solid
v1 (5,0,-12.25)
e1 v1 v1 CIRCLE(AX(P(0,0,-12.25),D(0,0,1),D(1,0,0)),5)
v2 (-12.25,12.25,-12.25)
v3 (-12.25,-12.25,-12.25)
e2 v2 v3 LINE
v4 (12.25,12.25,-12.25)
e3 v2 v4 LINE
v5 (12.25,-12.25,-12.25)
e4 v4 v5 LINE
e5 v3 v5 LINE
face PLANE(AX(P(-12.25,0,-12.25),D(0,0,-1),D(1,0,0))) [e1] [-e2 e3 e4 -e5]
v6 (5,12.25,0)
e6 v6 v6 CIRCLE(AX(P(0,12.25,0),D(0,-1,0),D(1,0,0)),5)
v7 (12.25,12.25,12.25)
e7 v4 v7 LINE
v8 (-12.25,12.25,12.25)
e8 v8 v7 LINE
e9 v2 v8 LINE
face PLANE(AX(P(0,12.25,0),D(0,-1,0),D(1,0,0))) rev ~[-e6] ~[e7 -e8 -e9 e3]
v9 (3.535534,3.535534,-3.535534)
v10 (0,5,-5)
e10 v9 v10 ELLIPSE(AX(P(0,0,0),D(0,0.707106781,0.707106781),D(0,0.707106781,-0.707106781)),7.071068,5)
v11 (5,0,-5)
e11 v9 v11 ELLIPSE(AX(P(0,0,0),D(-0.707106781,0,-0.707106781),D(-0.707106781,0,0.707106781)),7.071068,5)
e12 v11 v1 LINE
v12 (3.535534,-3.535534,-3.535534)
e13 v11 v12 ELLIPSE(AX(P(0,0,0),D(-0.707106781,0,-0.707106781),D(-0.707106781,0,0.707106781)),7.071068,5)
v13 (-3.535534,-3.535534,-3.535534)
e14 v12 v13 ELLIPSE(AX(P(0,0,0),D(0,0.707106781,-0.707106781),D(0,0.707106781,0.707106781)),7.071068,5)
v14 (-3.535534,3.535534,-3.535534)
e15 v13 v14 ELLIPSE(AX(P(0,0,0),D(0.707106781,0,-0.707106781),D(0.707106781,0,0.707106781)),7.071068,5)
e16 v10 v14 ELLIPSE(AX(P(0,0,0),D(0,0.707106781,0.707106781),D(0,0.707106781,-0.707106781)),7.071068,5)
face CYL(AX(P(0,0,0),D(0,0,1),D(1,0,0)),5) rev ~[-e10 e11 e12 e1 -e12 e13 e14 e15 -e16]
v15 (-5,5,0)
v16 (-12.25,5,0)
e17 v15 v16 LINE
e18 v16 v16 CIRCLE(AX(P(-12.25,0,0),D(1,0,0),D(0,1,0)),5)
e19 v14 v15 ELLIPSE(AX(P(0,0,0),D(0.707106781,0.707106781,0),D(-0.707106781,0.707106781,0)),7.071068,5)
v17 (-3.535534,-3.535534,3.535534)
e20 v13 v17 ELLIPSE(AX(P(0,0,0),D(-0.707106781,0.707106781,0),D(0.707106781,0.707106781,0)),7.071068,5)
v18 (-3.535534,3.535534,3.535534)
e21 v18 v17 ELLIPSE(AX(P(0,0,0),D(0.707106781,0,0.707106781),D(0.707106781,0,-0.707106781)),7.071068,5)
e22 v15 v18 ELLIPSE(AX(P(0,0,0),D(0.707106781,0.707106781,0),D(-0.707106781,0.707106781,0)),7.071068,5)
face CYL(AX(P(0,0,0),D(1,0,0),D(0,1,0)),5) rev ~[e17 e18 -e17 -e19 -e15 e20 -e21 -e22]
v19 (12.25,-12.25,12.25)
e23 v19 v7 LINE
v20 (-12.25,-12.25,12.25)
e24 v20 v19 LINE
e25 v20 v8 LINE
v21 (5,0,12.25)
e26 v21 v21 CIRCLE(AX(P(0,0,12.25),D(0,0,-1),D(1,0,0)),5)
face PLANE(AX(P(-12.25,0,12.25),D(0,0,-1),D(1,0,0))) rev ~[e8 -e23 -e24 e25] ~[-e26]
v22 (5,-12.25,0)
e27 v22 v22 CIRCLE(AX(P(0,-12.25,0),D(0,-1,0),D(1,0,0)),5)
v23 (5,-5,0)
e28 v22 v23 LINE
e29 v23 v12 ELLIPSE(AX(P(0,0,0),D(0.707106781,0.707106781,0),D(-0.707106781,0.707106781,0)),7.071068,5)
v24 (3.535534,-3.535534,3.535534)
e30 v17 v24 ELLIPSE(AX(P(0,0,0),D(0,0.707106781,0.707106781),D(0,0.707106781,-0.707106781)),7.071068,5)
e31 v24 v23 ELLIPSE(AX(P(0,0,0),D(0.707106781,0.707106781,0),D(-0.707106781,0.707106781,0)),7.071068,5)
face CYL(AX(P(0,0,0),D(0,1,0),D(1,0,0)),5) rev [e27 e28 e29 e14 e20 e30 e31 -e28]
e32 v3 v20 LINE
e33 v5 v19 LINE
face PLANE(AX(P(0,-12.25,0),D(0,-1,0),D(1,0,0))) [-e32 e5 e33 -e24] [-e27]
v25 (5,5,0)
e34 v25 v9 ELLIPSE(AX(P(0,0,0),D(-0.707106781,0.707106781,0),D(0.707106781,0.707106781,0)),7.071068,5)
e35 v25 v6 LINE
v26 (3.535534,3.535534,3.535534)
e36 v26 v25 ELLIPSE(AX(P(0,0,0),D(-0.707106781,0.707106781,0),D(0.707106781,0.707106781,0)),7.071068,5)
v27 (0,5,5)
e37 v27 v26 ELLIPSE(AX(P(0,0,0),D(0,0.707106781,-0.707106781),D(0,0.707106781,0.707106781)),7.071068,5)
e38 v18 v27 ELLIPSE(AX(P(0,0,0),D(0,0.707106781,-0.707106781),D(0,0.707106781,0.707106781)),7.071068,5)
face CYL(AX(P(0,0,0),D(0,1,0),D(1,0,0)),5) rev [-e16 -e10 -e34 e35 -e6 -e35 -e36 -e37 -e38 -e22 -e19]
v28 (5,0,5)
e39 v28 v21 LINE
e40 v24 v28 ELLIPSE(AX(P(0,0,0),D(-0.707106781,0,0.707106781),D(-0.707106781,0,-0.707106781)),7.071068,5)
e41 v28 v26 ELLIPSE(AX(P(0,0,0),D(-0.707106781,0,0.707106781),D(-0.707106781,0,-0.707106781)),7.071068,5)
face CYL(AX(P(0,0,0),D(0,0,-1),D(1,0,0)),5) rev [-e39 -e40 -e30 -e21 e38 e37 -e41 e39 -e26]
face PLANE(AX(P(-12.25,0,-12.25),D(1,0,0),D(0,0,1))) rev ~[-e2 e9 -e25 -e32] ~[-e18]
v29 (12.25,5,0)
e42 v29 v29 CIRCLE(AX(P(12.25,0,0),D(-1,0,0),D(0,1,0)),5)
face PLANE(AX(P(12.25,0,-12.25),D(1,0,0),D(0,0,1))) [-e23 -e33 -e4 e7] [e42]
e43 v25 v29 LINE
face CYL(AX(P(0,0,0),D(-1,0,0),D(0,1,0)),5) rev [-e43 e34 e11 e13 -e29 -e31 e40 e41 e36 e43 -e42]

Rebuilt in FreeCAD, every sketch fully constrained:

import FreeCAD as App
import Part
import Sketcher

V = App.Vector
Q = App.Units.Quantity


def add_polygon(sketch, points):
    """Adds a closed chain of lines whose ends are joined by coincident constraints."""
    first, n = sketch.GeometryCount, len(points)
    for a, b in zip(points, points[1:] + points[:1]):
        sketch.addGeometry(Part.LineSegment(App.Vector(*a, 0), App.Vector(*b, 0)), False)
    for i in range(n):
        sketch.addConstraint(Sketcher.Constraint("Coincident", first + i, 2, first + (i + 1) % n, 1))

doc = App.newDocument("Part")
params = doc.addObject("Spreadsheet::Sheet", "Params")
for row, (alias, value) in enumerate([
    ("sketch1_diameter", "10 mm"),
    ("sketch1_width", "24.5 mm"),
    ("pad1_length", "24.5 mm"),
    ("sketch2_diameter", "10 mm"),
    ("sketch3_diameter", "10 mm"),
], start=1):
    params.set(f"A{row}", alias)
    params.set(f"B{row}", "=" + value)
    params.setAlias(f"B{row}", alias)

body = doc.addObject("PartDesign::Body", "Body")

sketch1 = doc.addObject("Sketcher::SketchObject", "Sketch")
body.addObject(sketch1)
sketch1.AttachmentSupport = (doc.XZ_Plane, [""])
sketch1.MapMode = "FlatFace"
add_polygon(sketch1, [(-12, 12), (-12, -12), (12, -12), (12, 12)])
sketch1.addGeometry(Part.Circle(V(0, 0, 0), V(0, 0, 1), 5), False)
sketch1.addConstraint([
    Sketcher.Constraint("Vertical", 0),
    Sketcher.Constraint("Horizontal", 1),
    Sketcher.Constraint("Vertical", 2),
    Sketcher.Constraint("Horizontal", 3),
    Sketcher.Constraint("Coincident", 4, 3, -1, 1),
    Sketcher.Constraint("Symmetric", 0, 2, 2, 2, -1, 1),
    Sketcher.Constraint("Equal", 3, 0),
    Sketcher.Constraint("Diameter", 4, Q("10 mm")),
    Sketcher.Constraint("DistanceX", 1, 1, 1, 2, Q("24.5 mm")),
])
sketch1.setExpression("Constraints[11]", "Params.sketch1_diameter")
sketch1.setExpression("Constraints[12]", "Params.sketch1_width")
pad1 = doc.addObject("PartDesign::Pad", "Pad")
body.addObject(pad1)
pad1.Profile = sketch1
pad1.setExpression("Length", "Params.pad1_length")
pad1.Midplane = True

sketch2 = doc.addObject("Sketcher::SketchObject", "Sketch001")
body.addObject(sketch2)
sketch2.AttachmentSupport = (doc.YZ_Plane, [""])
sketch2.MapMode = "FlatFace"
sketch2.addGeometry(Part.Circle(V(0, 0, 0), V(0, 0, 1), 5), False)
sketch2.addConstraint([
    Sketcher.Constraint("Coincident", 0, 3, -1, 1),
    Sketcher.Constraint("Diameter", 0, Q("10 mm")),
])
sketch2.setExpression("Constraints[1]", "Params.sketch2_diameter")
pocket1 = doc.addObject("PartDesign::Pocket", "Pocket")
body.addObject(pocket1)
pocket1.Profile = sketch2
pocket1.Type = "ThroughAll"
pocket1.Midplane = True

sketch3 = doc.addObject("Sketcher::SketchObject", "Sketch002")
body.addObject(sketch3)
sketch3.AttachmentSupport = (doc.XY_Plane, [""])
sketch3.MapMode = "FlatFace"
sketch3.addGeometry(Part.Circle(V(0, 0, 0), V(0, 0, 1), 5), False)
sketch3.addConstraint([
    Sketcher.Constraint("Coincident", 0, 3, -1, 1),
    Sketcher.Constraint("Diameter", 0, Q("10 mm")),
])
sketch3.setExpression("Constraints[1]", "Params.sketch3_diameter")
pocket2 = doc.addObject("PartDesign::Pocket", "Pocket001")
body.addObject(pocket2)
pocket2.Profile = sketch3
pocket2.Type = "ThroughAll"
pocket2.Midplane = True

doc.recompute()
